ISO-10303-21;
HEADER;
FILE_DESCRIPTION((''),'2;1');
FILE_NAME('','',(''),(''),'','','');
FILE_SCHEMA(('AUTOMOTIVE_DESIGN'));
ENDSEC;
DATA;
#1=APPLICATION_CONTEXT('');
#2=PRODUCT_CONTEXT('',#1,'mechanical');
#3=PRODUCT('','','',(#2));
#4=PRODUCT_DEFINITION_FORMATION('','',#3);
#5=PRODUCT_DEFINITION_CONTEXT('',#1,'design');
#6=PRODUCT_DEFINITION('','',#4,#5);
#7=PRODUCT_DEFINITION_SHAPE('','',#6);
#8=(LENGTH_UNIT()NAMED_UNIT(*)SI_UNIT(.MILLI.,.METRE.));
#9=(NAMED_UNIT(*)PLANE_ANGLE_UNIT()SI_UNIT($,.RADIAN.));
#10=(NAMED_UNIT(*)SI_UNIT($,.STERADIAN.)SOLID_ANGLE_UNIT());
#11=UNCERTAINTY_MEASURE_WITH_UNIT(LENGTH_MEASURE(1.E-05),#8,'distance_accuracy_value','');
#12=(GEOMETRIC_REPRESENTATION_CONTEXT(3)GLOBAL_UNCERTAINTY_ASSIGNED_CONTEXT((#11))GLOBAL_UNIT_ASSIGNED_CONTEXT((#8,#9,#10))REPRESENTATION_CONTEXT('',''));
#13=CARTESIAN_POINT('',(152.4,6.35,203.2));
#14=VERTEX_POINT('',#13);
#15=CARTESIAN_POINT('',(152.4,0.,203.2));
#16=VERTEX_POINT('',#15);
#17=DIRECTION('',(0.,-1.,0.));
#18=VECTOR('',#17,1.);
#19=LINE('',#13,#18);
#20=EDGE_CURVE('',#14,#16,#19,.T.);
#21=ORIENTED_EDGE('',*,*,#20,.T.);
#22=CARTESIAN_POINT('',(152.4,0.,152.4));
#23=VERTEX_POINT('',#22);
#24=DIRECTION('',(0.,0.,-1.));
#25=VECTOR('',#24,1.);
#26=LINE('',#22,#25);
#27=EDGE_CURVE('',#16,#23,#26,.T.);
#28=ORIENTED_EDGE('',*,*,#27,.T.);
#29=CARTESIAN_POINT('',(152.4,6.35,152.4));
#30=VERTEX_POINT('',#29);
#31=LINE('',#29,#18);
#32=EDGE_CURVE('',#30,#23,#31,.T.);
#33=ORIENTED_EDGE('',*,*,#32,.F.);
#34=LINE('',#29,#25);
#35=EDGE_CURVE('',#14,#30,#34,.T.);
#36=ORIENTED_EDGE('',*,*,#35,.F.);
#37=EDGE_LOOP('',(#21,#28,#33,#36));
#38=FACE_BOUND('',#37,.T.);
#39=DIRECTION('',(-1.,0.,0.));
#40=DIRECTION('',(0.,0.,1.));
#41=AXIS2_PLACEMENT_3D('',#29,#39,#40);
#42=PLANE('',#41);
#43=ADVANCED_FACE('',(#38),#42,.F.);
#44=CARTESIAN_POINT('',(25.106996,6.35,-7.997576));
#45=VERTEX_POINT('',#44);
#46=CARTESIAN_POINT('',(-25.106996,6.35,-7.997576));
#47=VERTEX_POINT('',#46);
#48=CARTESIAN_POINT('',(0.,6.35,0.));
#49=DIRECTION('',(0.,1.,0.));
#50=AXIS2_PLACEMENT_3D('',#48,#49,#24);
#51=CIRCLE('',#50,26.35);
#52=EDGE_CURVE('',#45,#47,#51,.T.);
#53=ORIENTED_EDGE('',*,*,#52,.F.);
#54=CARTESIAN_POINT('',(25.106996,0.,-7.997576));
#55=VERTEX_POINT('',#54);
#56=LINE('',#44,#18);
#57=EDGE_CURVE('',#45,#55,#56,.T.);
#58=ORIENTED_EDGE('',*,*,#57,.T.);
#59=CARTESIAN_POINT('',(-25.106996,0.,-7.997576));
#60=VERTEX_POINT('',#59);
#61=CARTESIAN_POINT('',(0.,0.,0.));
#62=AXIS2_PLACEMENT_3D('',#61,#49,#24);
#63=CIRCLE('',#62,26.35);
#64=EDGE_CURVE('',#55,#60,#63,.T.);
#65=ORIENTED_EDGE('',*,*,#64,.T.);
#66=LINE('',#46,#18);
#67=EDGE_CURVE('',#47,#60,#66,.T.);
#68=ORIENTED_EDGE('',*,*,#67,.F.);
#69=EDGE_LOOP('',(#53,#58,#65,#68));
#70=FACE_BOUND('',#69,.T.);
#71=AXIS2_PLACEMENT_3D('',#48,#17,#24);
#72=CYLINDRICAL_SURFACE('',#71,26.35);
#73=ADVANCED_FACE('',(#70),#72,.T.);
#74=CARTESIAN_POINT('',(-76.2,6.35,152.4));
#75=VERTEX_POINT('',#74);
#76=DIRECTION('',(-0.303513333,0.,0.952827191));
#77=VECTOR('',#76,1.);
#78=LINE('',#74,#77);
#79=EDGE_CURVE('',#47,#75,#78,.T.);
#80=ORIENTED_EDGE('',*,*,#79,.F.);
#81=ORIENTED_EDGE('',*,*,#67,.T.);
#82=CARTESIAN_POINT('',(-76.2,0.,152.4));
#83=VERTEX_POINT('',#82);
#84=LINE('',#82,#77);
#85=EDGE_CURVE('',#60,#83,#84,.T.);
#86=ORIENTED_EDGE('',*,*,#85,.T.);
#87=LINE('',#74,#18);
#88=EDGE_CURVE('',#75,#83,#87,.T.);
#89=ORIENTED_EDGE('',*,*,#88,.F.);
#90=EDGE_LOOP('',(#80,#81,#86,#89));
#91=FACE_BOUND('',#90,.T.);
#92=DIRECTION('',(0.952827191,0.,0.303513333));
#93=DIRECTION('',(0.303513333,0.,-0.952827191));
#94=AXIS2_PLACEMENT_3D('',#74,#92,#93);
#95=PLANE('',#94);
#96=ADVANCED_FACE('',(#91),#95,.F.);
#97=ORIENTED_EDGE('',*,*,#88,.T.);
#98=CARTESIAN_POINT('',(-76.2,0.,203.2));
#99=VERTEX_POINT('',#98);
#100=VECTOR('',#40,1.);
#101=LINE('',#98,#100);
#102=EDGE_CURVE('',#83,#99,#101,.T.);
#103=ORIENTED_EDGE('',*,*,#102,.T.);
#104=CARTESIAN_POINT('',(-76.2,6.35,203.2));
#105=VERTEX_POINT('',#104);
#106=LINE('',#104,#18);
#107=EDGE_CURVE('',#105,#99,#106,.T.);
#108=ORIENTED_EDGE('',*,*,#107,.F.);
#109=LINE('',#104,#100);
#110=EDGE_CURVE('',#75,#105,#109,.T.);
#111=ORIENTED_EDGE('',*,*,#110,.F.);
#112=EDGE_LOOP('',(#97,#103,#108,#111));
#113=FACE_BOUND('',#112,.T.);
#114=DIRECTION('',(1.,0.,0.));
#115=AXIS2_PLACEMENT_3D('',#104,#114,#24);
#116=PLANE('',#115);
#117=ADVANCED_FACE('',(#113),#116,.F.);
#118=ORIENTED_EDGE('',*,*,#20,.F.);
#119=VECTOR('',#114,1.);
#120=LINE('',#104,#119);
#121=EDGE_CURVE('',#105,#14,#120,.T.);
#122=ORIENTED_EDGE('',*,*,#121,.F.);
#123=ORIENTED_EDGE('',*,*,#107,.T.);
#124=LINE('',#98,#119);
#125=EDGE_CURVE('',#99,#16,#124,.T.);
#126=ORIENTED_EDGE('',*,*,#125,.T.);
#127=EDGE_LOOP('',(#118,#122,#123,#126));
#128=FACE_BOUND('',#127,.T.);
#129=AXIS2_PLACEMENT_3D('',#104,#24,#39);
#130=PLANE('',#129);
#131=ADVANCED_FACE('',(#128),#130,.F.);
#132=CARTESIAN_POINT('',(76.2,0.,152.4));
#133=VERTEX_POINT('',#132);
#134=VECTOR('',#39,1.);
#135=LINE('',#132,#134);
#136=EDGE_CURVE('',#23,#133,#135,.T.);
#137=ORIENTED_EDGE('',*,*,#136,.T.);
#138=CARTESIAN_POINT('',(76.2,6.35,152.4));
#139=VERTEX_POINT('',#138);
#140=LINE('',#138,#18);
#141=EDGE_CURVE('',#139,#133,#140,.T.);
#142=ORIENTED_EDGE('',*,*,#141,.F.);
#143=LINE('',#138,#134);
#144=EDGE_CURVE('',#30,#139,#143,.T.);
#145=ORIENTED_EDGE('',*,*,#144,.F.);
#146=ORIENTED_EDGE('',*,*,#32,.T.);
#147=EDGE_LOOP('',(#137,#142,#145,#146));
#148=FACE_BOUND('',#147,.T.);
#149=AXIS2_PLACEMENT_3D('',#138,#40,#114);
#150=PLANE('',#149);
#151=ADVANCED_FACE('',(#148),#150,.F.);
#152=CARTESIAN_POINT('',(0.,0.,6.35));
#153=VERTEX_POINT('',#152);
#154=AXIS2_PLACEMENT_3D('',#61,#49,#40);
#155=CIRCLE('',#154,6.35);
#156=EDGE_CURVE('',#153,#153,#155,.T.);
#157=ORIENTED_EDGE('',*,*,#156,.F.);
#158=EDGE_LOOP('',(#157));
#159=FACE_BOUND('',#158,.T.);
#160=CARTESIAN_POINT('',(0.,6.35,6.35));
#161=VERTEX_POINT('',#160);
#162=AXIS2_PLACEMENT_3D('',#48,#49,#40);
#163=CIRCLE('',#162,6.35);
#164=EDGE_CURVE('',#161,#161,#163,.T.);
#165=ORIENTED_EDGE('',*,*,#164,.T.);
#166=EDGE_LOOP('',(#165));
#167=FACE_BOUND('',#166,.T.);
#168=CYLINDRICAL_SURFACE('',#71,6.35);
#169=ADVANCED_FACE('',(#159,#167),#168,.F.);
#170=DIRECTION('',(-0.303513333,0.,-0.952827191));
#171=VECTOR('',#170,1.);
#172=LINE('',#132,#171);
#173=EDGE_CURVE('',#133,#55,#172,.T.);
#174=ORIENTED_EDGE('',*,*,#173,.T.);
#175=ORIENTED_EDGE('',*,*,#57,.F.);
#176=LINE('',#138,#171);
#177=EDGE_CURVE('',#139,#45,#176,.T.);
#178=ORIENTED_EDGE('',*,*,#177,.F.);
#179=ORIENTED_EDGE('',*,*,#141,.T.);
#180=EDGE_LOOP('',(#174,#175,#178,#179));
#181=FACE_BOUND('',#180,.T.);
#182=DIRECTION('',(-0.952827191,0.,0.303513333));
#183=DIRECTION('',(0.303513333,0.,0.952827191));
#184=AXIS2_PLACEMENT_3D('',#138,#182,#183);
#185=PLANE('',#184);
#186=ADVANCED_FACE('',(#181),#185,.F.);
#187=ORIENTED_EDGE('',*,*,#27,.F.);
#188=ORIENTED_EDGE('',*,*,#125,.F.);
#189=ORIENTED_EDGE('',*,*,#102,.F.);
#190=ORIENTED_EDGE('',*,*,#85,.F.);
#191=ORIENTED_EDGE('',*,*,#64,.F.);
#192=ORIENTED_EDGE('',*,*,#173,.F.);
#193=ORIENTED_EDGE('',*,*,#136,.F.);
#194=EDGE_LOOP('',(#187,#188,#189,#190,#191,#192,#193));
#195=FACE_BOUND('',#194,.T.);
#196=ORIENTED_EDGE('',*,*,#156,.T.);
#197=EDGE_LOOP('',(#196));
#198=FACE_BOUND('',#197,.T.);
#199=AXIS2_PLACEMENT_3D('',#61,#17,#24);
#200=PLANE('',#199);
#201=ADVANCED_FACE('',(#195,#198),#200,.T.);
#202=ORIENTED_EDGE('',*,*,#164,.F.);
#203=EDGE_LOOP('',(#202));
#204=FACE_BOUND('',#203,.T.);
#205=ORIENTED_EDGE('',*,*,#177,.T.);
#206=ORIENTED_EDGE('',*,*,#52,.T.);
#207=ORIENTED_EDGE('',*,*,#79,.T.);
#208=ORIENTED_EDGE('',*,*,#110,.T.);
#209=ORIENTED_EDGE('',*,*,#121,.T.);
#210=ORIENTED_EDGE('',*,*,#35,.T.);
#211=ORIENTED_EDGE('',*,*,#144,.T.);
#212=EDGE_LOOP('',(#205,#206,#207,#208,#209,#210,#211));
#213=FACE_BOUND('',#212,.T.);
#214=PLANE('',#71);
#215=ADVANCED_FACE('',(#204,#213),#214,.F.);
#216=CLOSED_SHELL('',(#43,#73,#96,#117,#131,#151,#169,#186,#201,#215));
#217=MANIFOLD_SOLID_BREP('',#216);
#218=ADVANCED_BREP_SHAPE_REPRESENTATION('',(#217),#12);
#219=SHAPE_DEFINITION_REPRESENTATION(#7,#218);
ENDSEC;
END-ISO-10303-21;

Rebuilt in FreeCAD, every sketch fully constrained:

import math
import FreeCAD as App
import Part
import Sketcher

V = App.Vector
Q = App.Units.Quantity

doc = App.newDocument("Part")
body = doc.addObject("PartDesign::Body", "Body")

# Sketch on XZ plane
sketch1 = body.newObject("Sketcher::SketchObject", "Sketch")
sketch1.AttachmentSupport = (doc.getObject("XZ_Plane"), [""])
sketch1.MapMode = "FlatFace"
sketch1.addGeometry(Part.LineSegment(V(76, 152, 0), V(25, -8, 0)), False)
sketch1.addGeometry(Part.ArcOfCircle(Part.Circle(V(0, 0, 0), V(0, 0, 1), 26), math.radians(-162), math.radians(-18)), False)
sketch1.addGeometry(Part.LineSegment(V(-25, -8, 0), V(-76, 152, 0)), False)
sketch1.addGeometry(Part.LineSegment(V(-76, 152, 0), V(-76, 203, 0)), False)
sketch1.addGeometry(Part.LineSegment(V(-76, 203, 0), V(152, 203, 0)), False)
sketch1.addGeometry(Part.LineSegment(V(152, 203, 0), V(152, 152, 0)), False)
sketch1.addGeometry(Part.LineSegment(V(152, 152, 0), V(76, 152, 0)), False)
sketch1.addGeometry(Part.Circle(V(0, 0, 0), V(0, 0, 1), 6), False)
sketch1.addConstraint(Sketcher.Constraint("Tangent", 0, 2, 1, 2))
sketch1.addConstraint(Sketcher.Constraint("Tangent", 1, 1, 2, 1))
sketch1.addConstraint(Sketcher.Constraint("Coincident", 2, 2, 3, 1))
sketch1.addConstraint(Sketcher.Constraint("Coincident", 3, 2, 4, 1))
sketch1.addConstraint(Sketcher.Constraint("Coincident", 4, 2, 5, 1))
sketch1.addConstraint(Sketcher.Constraint("Coincident", 5, 2, 6, 1))
sketch1.addConstraint(Sketcher.Constraint("Coincident", 6, 2, 0, 1))
sketch1.addConstraint(Sketcher.Constraint("Vertical", 3))
sketch1.addConstraint(Sketcher.Constraint("Horizontal", 4))
sketch1.addConstraint(Sketcher.Constraint("Vertical", 5))
sketch1.addConstraint(Sketcher.Constraint("Horizontal", 6))
sketch1.addConstraint(Sketcher.Constraint("Coincident", 1, 3, -1, 1))
sketch1.addConstraint(Sketcher.Constraint("Coincident", 7, 3, -1, 1))
sketch1.addConstraint(Sketcher.Constraint("Symmetric", 2, 2, 6, 2, -2))
sketch1.addConstraint(Sketcher.Constraint("Diameter", 7, Q("0.5 in")))
sketch1.addConstraint(Sketcher.Constraint("DistanceX", 4, 1, 4, 2, Q("9 in")))
sketch1.addConstraint(Sketcher.Constraint("DistanceX", 6, 2, 6, 1, Q("3 in")))
sketch1.addConstraint(Sketcher.Constraint("DistanceY", 3, 1, 3, 2, Q("2 in")))
sketch1.addConstraint(Sketcher.Constraint("DistanceY", -1, 1, 2, 2, Q("6 in")))
sketch1.addConstraint(Sketcher.Constraint("Radius", 1, Q("26.35 mm")))
pad1 = body.newObject("PartDesign::Pad", "Pad")
pad1.Profile = sketch1
pad1.Length = Q("0.25 in")
pad1.Reversed = True

doc.recompute()
